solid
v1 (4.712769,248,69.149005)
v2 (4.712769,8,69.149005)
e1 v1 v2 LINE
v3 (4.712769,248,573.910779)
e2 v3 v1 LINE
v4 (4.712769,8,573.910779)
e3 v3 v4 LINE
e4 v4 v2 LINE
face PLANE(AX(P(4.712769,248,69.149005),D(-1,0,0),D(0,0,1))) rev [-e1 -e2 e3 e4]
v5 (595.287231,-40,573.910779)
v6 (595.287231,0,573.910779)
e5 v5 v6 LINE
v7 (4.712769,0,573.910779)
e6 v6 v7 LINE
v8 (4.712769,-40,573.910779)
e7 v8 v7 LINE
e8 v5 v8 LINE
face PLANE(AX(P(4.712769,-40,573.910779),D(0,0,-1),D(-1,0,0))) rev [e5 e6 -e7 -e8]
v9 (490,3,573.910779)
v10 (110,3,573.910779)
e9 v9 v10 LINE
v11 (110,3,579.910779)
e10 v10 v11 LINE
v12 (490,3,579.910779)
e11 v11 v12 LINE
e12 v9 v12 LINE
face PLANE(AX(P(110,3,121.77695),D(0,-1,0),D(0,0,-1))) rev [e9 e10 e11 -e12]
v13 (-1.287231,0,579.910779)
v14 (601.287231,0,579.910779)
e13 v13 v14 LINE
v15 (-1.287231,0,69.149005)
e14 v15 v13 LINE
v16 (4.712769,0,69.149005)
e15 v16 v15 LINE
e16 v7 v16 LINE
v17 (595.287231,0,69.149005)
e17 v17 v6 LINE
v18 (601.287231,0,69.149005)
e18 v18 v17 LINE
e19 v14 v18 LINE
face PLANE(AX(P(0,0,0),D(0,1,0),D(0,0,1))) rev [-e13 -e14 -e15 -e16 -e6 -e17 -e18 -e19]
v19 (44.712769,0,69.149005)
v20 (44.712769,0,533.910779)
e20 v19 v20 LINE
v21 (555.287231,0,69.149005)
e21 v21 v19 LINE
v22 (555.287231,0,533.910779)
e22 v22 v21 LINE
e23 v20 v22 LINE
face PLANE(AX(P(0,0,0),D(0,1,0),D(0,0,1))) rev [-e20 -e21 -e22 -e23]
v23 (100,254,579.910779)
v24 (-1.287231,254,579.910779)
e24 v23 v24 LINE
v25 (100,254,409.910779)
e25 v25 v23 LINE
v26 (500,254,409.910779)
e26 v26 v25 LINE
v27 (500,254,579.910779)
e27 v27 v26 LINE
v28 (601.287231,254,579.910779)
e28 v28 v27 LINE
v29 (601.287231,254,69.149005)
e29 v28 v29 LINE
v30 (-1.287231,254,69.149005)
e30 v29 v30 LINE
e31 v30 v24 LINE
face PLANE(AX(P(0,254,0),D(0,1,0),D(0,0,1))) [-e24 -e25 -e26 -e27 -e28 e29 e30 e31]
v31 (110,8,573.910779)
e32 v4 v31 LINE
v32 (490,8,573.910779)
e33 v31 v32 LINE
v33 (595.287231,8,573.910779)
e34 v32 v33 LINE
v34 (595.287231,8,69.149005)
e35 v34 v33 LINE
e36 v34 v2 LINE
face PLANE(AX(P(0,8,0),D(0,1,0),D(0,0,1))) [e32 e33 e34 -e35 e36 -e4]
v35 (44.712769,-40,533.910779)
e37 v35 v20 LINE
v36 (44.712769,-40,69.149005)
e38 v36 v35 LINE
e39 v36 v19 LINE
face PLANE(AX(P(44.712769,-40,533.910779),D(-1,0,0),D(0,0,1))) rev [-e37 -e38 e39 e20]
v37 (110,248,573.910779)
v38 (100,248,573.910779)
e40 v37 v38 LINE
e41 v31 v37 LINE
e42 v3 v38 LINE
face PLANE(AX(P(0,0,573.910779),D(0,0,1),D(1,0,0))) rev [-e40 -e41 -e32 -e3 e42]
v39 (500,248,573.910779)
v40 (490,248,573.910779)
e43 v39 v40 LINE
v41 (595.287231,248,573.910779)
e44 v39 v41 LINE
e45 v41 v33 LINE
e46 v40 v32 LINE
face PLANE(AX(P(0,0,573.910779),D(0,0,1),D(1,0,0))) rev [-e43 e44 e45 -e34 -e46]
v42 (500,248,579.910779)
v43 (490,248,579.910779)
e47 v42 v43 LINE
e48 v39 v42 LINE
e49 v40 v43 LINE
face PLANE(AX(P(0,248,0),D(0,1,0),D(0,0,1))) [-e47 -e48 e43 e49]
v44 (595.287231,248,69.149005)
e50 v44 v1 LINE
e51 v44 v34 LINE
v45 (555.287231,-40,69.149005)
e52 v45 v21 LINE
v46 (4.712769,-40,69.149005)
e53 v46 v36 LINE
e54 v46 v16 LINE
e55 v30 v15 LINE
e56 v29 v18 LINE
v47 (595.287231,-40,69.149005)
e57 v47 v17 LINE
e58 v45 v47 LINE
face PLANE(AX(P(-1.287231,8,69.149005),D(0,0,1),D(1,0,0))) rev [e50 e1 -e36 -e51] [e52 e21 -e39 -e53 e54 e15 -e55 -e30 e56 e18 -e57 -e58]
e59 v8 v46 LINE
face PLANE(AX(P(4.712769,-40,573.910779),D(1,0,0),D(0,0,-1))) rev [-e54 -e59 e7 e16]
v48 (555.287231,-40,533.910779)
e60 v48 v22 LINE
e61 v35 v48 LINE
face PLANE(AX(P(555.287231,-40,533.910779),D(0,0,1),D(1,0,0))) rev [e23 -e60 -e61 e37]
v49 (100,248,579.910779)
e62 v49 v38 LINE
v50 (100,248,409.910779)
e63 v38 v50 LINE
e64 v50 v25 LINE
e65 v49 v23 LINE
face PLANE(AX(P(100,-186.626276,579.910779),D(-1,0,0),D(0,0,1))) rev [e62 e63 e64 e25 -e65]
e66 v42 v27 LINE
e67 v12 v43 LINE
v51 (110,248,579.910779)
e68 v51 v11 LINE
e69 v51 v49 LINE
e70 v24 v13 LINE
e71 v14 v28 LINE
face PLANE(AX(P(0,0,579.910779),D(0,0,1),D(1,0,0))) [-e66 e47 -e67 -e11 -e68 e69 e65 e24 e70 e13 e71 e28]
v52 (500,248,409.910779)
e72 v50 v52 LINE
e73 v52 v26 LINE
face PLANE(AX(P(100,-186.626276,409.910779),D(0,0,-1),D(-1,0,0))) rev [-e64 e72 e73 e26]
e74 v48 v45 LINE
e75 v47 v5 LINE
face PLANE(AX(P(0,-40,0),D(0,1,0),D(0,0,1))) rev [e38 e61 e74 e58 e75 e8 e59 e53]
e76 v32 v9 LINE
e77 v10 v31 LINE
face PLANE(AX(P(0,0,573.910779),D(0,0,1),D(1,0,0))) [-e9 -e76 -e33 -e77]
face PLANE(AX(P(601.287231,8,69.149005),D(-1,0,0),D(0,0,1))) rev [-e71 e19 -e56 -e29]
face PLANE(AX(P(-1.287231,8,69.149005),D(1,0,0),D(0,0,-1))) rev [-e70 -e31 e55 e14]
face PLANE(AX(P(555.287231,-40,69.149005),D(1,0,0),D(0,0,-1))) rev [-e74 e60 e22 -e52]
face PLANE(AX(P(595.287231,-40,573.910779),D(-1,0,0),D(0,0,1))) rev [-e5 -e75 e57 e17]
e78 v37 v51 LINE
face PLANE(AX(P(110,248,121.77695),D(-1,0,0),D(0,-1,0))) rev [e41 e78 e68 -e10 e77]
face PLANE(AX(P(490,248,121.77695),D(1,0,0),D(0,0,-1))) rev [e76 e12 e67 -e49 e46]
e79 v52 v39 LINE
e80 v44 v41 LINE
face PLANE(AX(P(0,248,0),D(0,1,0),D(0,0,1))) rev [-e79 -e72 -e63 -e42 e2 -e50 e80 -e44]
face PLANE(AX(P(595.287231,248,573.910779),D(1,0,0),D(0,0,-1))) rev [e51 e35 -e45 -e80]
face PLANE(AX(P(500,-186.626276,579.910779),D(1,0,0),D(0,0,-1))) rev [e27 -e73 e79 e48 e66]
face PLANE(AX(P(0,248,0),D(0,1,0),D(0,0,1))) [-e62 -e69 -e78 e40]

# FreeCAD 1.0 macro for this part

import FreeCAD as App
import Part
import Sketcher
from FreeCAD import Vector

doc = App.newDocument("Part")
params = doc.addObject("Spreadsheet::Sheet", "Params")
for row, (alias, value) in enumerate([
    ("pad1_length", "8 mm"),
    ("sketch2_width", "6 mm"),
    ("pad2_length", "240 mm"),
    ("pad3_length", "6 mm"),
    ("sketch4_height", "254 mm"),
    ("pad4_length", "6 mm"),
    ("sketch5_width", "400 mm"),
    ("sketch5_height", "170 mm"),
    ("pocket1_length", "6 mm"),
    ("sketch6_width", "380 mm"),
    ("sketch6_height", "245 mm"),
    ("pocket2_length", "6 mm"),
    ("sketch7_width", "40 mm"),
    ("pad5_length", "40 mm"),
], start=1):
    params.set(f"A{row}", alias)
    params.set(f"B{row}", "=" + value)
    params.setAlias(f"B{row}", alias)

body = doc.addObject("PartDesign::Body", "Body")

# Sketch on XZ plane
sketch1 = body.newObject("Sketcher::SketchObject", "Sketch")
sketch1.AttachmentSupport = (doc.getObject("XZ_Plane"), [""])
sketch1.MapMode = "FlatFace"
sketch1.addGeometry(Part.LineSegment(Vector(-1, 69, 0), Vector(-1, 574, 0)), False)
sketch1.addGeometry(Part.LineSegment(Vector(-1, 574, 0), Vector(601, 574, 0)), False)
sketch1.addGeometry(Part.LineSegment(Vector(601, 574, 0), Vector(601, 69, 0)), False)
sketch1.addGeometry(Part.LineSegment(Vector(601, 69, 0), Vector(-1, 69, 0)), False)
sketch1.addConstraint(Sketcher.Constraint("Coincident", 0, 2, 1, 1))
sketch1.addConstraint(Sketcher.Constraint("Coincident", 1, 2, 2, 1))
sketch1.addConstraint(Sketcher.Constraint("Coincident", 2, 2, 3, 1))
sketch1.addConstraint(Sketcher.Constraint("Coincident", 3, 2, 0, 1))
sketch1.addConstraint(Sketcher.Constraint("Vertical", 0))
sketch1.addConstraint(Sketcher.Constraint("Horizontal", 1))
sketch1.addConstraint(Sketcher.Constraint("Vertical", 2))
sketch1.addConstraint(Sketcher.Constraint("Horizontal", 3))
sketch1.addConstraint(Sketcher.Constraint("DistanceX", 1, 1, 1, 2, 602.574463))
sketch1.addConstraint(Sketcher.Constraint("DistanceY", 0, 1, 0, 2, 504.761775))
sketch1.addConstraint(Sketcher.Constraint("DistanceX", 0, 2, -1, 1, 1.287231))
sketch1.addConstraint(Sketcher.Constraint("DistanceY", -1, 1, 0, 2, 573.910779))
pad1 = body.newObject("PartDesign::Pad", "Pad")
pad1.Profile = sketch1
pad1.setExpression("Length", "Params.pad1_length")
pad1.Reversed = True

# Sketch on XZ plane
sketch2 = body.newObject("Sketcher::SketchObject", "Sketch001")
sketch2.AttachmentSupport = (doc.getObject("XZ_Plane"), [""])
sketch2.MapMode = "FlatFace"
sketch2.AttachmentOffset = App.Placement(Vector(0, 0, -8), App.Rotation())
sketch2.addGeometry(Part.LineSegment(Vector(-1, 69, 0), Vector(-1, 574, 0)), False)
sketch2.addGeometry(Part.LineSegment(Vector(-1, 574, 0), Vector(5, 574, 0)), False)
sketch2.addGeometry(Part.LineSegment(Vector(5, 574, 0), Vector(5, 69, 0)), False)
sketch2.addGeometry(Part.LineSegment(Vector(5, 69, 0), Vector(-1, 69, 0)), False)
sketch2.addGeometry(Part.LineSegment(Vector(595, 69, 0), Vector(595, 574, 0)), False)
sketch2.addGeometry(Part.LineSegment(Vector(595, 574, 0), Vector(601, 574, 0)), False)
sketch2.addGeometry(Part.LineSegment(Vector(601, 574, 0), Vector(601, 69, 0)), False)
sketch2.addGeometry(Part.LineSegment(Vector(601, 69, 0), Vector(595, 69, 0)), False)
sketch2.addConstraint(Sketcher.Constraint("Coincident", 0, 2, 1, 1))
sketch2.addConstraint(Sketcher.Constraint("Coincident", 1, 2, 2, 1))
sketch2.addConstraint(Sketcher.Constraint("Coincident", 2, 2, 3, 1))
sketch2.addConstraint(Sketcher.Constraint("Coincident", 3, 2, 0, 1))
sketch2.addConstraint(Sketcher.Constraint("Coincident", 4, 2, 5, 1))
sketch2.addConstraint(Sketcher.Constraint("Coincident", 5, 2, 6, 1))
sketch2.addConstraint(Sketcher.Constraint("Coincident", 6, 2, 7, 1))
sketch2.addConstraint(Sketcher.Constraint("Coincident", 7, 2, 4, 1))
sketch2.addConstraint(Sketcher.Constraint("Vertical", 0))
sketch2.addConstraint(Sketcher.Constraint("Horizontal", 1))
sketch2.addConstraint(Sketcher.Constraint("Vertical", 2))
sketch2.addConstraint(Sketcher.Constraint("Horizontal", 3))
sketch2.addConstraint(Sketcher.Constraint("Vertical", 4))
sketch2.addConstraint(Sketcher.Constraint("Horizontal", 5))
sketch2.addConstraint(Sketcher.Constraint("Vertical", 6))
sketch2.addConstraint(Sketcher.Constraint("Horizontal", 7))
sketch2.addConstraint(Sketcher.Constraint("Horizontal", 1, 2, 4, 2))
sketch2.addConstraint(Sketcher.Constraint("Horizontal", 3, 2, 6, 2))
sketch2.addConstraint(Sketcher.Constraint("Equal", 3, 5))
sketch2.addConstraint(Sketcher.Constraint("DistanceX", 1, 1, 1, 2, 6.0))
sketch2.addConstraint(Sketcher.Constraint("DistanceY", 0, 1, 0, 2, 504.761775))
sketch2.addConstraint(Sketcher.Constraint("DistanceX", 0, 2, -1, 1, 1.287231))
sketch2.addConstraint(Sketcher.Constraint("DistanceY", -1, 1, 0, 2, 573.910779))
sketch2.addConstraint(Sketcher.Constraint("DistanceX", -1, 1, 4, 2, 595.287231))
sketch2.setExpression("Constraints[19]", "Params.sketch2_width")
pad2 = body.newObject("PartDesign::Pad", "Pad001")
pad2.Profile = sketch2
pad2.setExpression("Length", "Params.pad2_length")
pad2.Reversed = True

# Sketch on XZ plane
sketch3 = body.newObject("Sketcher::SketchObject", "Sketch002")
sketch3.AttachmentSupport = (doc.getObject("XZ_Plane"), [""])
sketch3.MapMode = "FlatFace"
sketch3.AttachmentOffset = App.Placement(Vector(0, 0, -248), App.Rotation())
sketch3.addGeometry(Part.LineSegment(Vector(-1, 69, 0), Vector(-1, 574, 0)), False)
sketch3.addGeometry(Part.LineSegment(Vector(-1, 574, 0), Vector(601, 574, 0)), False)
sketch3.addGeometry(Part.LineSegment(Vector(601, 574, 0), Vector(601, 69, 0)), False)
sketch3.addGeometry(Part.LineSegment(Vector(601, 69, 0), Vector(-1, 69, 0)), False)
sketch3.addConstraint(Sketcher.Constraint("Coincident", 0, 2, 1, 1))
sketch3.addConstraint(Sketcher.Constraint("Coincident", 1, 2, 2, 1))
sketch3.addConstraint(Sketcher.Constraint("Coincident", 2, 2, 3, 1))
sketch3.addConstraint(Sketcher.Constraint("Coincident", 3, 2, 0, 1))
sketch3.addConstraint(Sketcher.Constraint("Vertical", 0))
sketch3.addConstraint(Sketcher.Constraint("Horizontal", 1))
sketch3.addConstraint(Sketcher.Constraint("Vertical", 2))
sketch3.addConstraint(Sketcher.Constraint("Horizontal", 3))
sketch3.addConstraint(Sketcher.Constraint("DistanceX", 1, 1, 1, 2, 602.574463))
sketch3.addConstraint(Sketcher.Constraint("DistanceY", 0, 1, 0, 2, 504.761775))
sketch3.addConstraint(Sketcher.Constraint("DistanceX", 0, 2, -1, 1, 1.287231))
sketch3.addConstraint(Sketcher.Constraint("DistanceY", -1, 1, 0, 2, 573.910779))
pad3 = body.newObject("PartDesign::Pad", "Pad002")
pad3.Profile = sketch3
pad3.setExpression("Length", "Params.pad3_length")
pad3.Reversed = True

# Sketch on XY plane
sketch4 = body.newObject("Sketcher::SketchObject", "Sketch003")
sketch4.AttachmentSupport = (doc.getObject("XY_Plane"), [""])
sketch4.MapMode = "FlatFace"
sketch4.AttachmentOffset = App.Placement(Vector(0, 0, 573.910779), App.Rotation())
sketch4.addGeometry(Part.LineSegment(Vector(-1, 254, 0), Vector(-1, 0, 0)), False)
sketch4.addGeometry(Part.LineSegment(Vector(-1, 0, 0), Vector(601, 0, 0)), False)
sketch4.addGeometry(Part.LineSegment(Vector(601, 0, 0), Vector(601, 254, 0)), False)
sketch4.addGeometry(Part.LineSegment(Vector(601, 254, 0), Vector(-1, 254, 0)), False)
sketch4.addConstraint(Sketcher.Constraint("Coincident", 0, 2, 1, 1))
sketch4.addConstraint(Sketcher.Constraint("Coincident", 1, 2, 2, 1))
sketch4.addConstraint(Sketcher.Constraint("Coincident", 2, 2, 3, 1))
sketch4.addConstraint(Sketcher.Constraint("Coincident", 3, 2, 0, 1))
sketch4.addConstraint(Sketcher.Constraint("Vertical", 0))
sketch4.addConstraint(Sketcher.Constraint("Horizontal", 1))
sketch4.addConstraint(Sketcher.Constraint("Vertical", 2))
sketch4.addConstraint(Sketcher.Constraint("Horizontal", 3))
sketch4.addConstraint(Sketcher.Constraint("PointOnObject", 0, 2, -1))
sketch4.addConstraint(Sketcher.Constraint("DistanceY", 0, 2, 0, 1, 254.0))
sketch4.addConstraint(Sketcher.Constraint("DistanceX", 1, 1, 1, 2, 602.574463))
sketch4.addConstraint(Sketcher.Constraint("DistanceX", 0, 2, -1, 1, 1.287231))
sketch4.setExpression("Constraints[9]", "Params.sketch4_height")
pad4 = body.newObject("PartDesign::Pad", "Pad003")
pad4.Profile = sketch4
pad4.setExpression("Length", "Params.pad4_length")

# Sketch on XZ plane
sketch5 = body.newObject("Sketcher::SketchObject", "Sketch004")
sketch5.AttachmentSupport = (doc.getObject("XZ_Plane"), [""])
sketch5.MapMode = "FlatFace"
sketch5.AttachmentOffset = App.Placement(Vector(0, 0, -254), App.Rotation())
sketch5.addGeometry(Part.LineSegment(Vector(100, 410, 0), Vector(100, 580, 0)), False)
sketch5.addGeometry(Part.LineSegment(Vector(100, 580, 0), Vector(500, 580, 0)), False)
sketch5.addGeometry(Part.LineSegment(Vector(500, 580, 0), Vector(500, 410, 0)), False)
sketch5.addGeometry(Part.LineSegment(Vector(500, 410, 0), Vector(100, 410, 0)), False)
sketch5.addConstraint(Sketcher.Constraint("Coincident", 0, 2, 1, 1))
sketch5.addConstraint(Sketcher.Constraint("Coincident", 1, 2, 2, 1))
sketch5.addConstraint(Sketcher.Constraint("Coincident", 2, 2, 3, 1))
sketch5.addConstraint(Sketcher.Constraint("Coincident", 3, 2, 0, 1))
sketch5.addConstraint(Sketcher.Constraint("Vertical", 0))
sketch5.addConstraint(Sketcher.Constraint("Horizontal", 1))
sketch5.addConstraint(Sketcher.Constraint("Vertical", 2))
sketch5.addConstraint(Sketcher.Constraint("Horizontal", 3))
sketch5.addConstraint(Sketcher.Constraint("DistanceX", 1, 1, 1, 2, 400.0))
sketch5.addConstraint(Sketcher.Constraint("DistanceY", 0, 1, 0, 2, 170.0))
sketch5.addConstraint(Sketcher.Constraint("DistanceX", -1, 1, 0, 2, 100.0))
sketch5.addConstraint(Sketcher.Constraint("DistanceY", -1, 1, 0, 2, 579.910779))
sketch5.setExpression("Constraints[8]", "Params.sketch5_width")
sketch5.setExpression("Constraints[9]", "Params.sketch5_height")
pocket1 = body.newObject("PartDesign::Pocket", "Pocket")
pocket1.Profile = sketch5
pocket1.setExpression("Length", "Params.pocket1_length")
pocket1.Reversed = True

# Sketch on XY plane
sketch6 = body.newObject("Sketcher::SketchObject", "Sketch005")
sketch6.AttachmentSupport = (doc.getObject("XY_Plane"), [""])
sketch6.MapMode = "FlatFace"
sketch6.AttachmentOffset = App.Placement(Vector(0, 0, 579.910779), App.Rotation())
sketch6.addGeometry(Part.LineSegment(Vector(110, 248, 0), Vector(110, 3, 0)), False)
sketch6.addGeometry(Part.LineSegment(Vector(110, 3, 0), Vector(490, 3, 0)), False)
sketch6.addGeometry(Part.LineSegment(Vector(490, 3, 0), Vector(490, 248, 0)), False)
sketch6.addGeometry(Part.LineSegment(Vector(490, 248, 0), Vector(110, 248, 0)), False)
sketch6.addConstraint(Sketcher.Constraint("Coincident", 0, 2, 1, 1))
sketch6.addConstraint(Sketcher.Constraint("Coincident", 1, 2, 2, 1))
sketch6.addConstraint(Sketcher.Constraint("Coincident", 2, 2, 3, 1))
sketch6.addConstraint(Sketcher.Constraint("Coincident", 3, 2, 0, 1))
sketch6.addConstraint(Sketcher.Constraint("Vertical", 0))
sketch6.addConstraint(Sketcher.Constraint("Horizontal", 1))
sketch6.addConstraint(Sketcher.Constraint("Vertical", 2))
sketch6.addConstraint(Sketcher.Constraint("Horizontal", 3))
sketch6.addConstraint(Sketcher.Constraint("DistanceX", 1, 1, 1, 2, 380.0))
sketch6.addConstraint(Sketcher.Constraint("DistanceY", 0, 2, 0, 1, 245.0))
sketch6.addConstraint(Sketcher.Constraint("DistanceX", -1, 1, 0, 2, 110.0))
sketch6.addConstraint(Sketcher.Constraint("DistanceY", -1, 1, 0, 2, 3.0))
sketch6.setExpression("Constraints[8]", "Params.sketch6_width")
sketch6.setExpression("Constraints[9]", "Params.sketch6_height")
pocket2 = body.newObject("PartDesign::Pocket", "Pocket001")
pocket2.Profile = sketch6
pocket2.setExpression("Length", "Params.pocket2_length")

# Sketch on XZ plane
sketch7 = body.newObject("Sketcher::SketchObject", "Sketch006")
sketch7.AttachmentSupport = (doc.getObject("XZ_Plane"), [""])
sketch7.MapMode = "FlatFace"
sketch7.addGeometry(Part.LineSegment(Vector(595, 574, 0), Vector(5, 574, 0)), False)
sketch7.addGeometry(Part.LineSegment(Vector(5, 574, 0), Vector(5, 69, 0)), False)
sketch7.addGeometry(Part.LineSegment(Vector(5, 69, 0), Vector(45, 69, 0)), False)
sketch7.addGeometry(Part.LineSegment(Vector(45, 69, 0), Vector(45, 534, 0)), False)
sketch7.addGeometry(Part.LineSegment(Vector(45, 534, 0), Vector(555, 534, 0)), False)
sketch7.addGeometry(Part.LineSegment(Vector(555, 534, 0), Vector(555, 69, 0)), False)
sketch7.addGeometry(Part.LineSegment(Vector(555, 69, 0), Vector(595, 69, 0)), False)
sketch7.addGeometry(Part.LineSegment(Vector(595, 69, 0), Vector(595, 574, 0)), False)
sketch7.addConstraint(Sketcher.Constraint("Coincident", 0, 2, 1, 1))
sketch7.addConstraint(Sketcher.Constraint("Coincident", 1, 2, 2, 1))
sketch7.addConstraint(Sketcher.Constraint("Coincident", 2, 2, 3, 1))
sketch7.addConstraint(Sketcher.Constraint("Coincident", 3, 2, 4, 1))
sketch7.addConstraint(Sketcher.Constraint("Coincident", 4, 2, 5, 1))
sketch7.addConstraint(Sketcher.Constraint("Coincident", 5, 2, 6, 1))
sketch7.addConstraint(Sketcher.Constraint("Coincident", 6, 2, 7, 1))
sketch7.addConstraint(Sketcher.Constraint("Coincident", 7, 2, 0, 1))
sketch7.addConstraint(Sketcher.Constraint("Horizontal", 0))
sketch7.addConstraint(Sketcher.Constraint("Vertical", 1))
sketch7.addConstraint(Sketcher.Constraint("Horizontal", 2))
sketch7.addConstraint(Sketcher.Constraint("Vertical", 3))
sketch7.addConstraint(Sketcher.Constraint("Horizontal", 4))
sketch7.addConstraint(Sketcher.Constraint("Vertical", 5))
sketch7.addConstraint(Sketcher.Constraint("Horizontal", 6))
sketch7.addConstraint(Sketcher.Constraint("Vertical", 7))
sketch7.addConstraint(Sketcher.Constraint("Horizontal", 2, 2, 5, 2))
sketch7.addConstraint(Sketcher.Constraint("Equal", 2, 6))
sketch7.addConstraint(Sketcher.Constraint("DistanceX", 2, 1, 2, 2, 40.0))
sketch7.addConstraint(Sketcher.Constraint("DistanceY", 3, 2, 0, 2, 40.0))
sketch7.addConstraint(Sketcher.Constraint("DistanceX", 0, 2, 0, 1, 590.574463))
sketch7.addConstraint(Sketcher.Constraint("DistanceY", 1, 2, 1, 1, 504.761775))
sketch7.addConstraint(Sketcher.Constraint("DistanceX", -1, 1, 0, 2, 4.712769))
sketch7.addConstraint(Sketcher.Constraint("DistanceY", -1, 1, 0, 2, 573.910779))
sketch7.setExpression("Constraints[18]", "Params.sketch7_width")
pad5 = body.newObject("PartDesign::Pad", "Pad004")
pad5.Profile = sketch7
pad5.setExpression("Length", "Params.pad5_length")

doc.recompute()
